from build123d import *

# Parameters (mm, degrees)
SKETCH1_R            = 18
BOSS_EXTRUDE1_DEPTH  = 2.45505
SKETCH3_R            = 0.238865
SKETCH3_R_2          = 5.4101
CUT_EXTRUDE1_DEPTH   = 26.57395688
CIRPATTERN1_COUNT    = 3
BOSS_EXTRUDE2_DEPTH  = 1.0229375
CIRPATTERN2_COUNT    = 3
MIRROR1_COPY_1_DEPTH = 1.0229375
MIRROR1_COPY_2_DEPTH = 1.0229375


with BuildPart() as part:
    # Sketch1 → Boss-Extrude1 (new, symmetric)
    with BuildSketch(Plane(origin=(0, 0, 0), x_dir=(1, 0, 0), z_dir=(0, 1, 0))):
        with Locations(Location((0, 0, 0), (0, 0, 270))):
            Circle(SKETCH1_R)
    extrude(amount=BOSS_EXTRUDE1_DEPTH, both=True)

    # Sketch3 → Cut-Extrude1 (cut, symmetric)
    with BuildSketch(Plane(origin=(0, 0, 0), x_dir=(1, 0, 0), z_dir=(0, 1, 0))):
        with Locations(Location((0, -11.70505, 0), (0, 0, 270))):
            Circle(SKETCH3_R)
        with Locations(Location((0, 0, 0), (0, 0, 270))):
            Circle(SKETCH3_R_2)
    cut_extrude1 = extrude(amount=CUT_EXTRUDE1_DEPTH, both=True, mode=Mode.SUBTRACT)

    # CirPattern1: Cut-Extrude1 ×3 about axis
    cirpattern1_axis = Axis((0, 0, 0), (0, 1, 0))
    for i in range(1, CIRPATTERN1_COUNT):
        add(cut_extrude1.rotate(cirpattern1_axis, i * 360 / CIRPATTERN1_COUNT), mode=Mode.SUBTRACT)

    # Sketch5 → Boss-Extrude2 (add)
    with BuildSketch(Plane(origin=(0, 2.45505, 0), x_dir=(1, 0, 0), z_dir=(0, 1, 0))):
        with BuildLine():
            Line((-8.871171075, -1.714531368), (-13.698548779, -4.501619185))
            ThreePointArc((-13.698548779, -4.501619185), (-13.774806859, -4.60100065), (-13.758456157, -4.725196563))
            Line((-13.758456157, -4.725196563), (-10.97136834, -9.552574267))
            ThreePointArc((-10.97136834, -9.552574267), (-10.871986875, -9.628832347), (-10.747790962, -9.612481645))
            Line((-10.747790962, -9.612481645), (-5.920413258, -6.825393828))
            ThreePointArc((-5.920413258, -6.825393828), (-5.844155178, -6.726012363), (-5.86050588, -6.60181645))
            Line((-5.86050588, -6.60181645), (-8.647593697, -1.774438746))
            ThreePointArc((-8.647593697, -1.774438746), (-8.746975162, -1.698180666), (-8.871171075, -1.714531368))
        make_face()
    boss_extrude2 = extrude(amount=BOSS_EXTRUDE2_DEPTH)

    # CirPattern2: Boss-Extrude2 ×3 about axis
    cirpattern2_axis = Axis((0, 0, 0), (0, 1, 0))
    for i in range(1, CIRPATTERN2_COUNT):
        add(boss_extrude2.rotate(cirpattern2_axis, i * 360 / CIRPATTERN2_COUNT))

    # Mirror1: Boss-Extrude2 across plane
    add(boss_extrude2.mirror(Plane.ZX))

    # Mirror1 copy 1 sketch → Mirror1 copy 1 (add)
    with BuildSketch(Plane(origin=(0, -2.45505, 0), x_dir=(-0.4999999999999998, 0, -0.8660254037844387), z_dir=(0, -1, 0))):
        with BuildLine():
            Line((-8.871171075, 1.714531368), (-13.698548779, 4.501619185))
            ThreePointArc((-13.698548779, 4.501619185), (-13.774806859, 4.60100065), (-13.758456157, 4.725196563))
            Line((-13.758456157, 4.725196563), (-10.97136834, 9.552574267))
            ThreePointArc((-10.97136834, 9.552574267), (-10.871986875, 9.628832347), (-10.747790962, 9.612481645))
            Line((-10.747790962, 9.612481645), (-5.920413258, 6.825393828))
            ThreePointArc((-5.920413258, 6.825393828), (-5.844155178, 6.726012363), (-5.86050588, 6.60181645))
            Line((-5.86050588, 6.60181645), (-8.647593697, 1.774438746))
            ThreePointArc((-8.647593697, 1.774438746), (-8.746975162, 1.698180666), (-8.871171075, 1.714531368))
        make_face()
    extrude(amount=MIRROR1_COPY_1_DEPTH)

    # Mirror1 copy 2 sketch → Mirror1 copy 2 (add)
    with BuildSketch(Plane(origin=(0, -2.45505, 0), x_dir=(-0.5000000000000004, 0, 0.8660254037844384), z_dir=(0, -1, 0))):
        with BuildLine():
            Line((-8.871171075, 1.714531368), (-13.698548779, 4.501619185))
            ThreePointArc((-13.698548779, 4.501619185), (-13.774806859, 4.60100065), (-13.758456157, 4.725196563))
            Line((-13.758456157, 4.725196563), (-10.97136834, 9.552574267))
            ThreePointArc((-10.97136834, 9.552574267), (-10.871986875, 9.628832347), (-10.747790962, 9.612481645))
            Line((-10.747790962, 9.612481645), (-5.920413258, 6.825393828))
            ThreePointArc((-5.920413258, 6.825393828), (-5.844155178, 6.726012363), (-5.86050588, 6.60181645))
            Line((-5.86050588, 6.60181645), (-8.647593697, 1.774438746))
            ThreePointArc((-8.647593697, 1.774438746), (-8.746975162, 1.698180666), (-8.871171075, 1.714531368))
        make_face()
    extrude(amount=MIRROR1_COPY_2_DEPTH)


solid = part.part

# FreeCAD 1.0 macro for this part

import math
import FreeCAD as App
import Part
import Sketcher
from FreeCAD import Vector
Q = App.Units.Quantity

doc = App.newDocument("Part")
params = doc.addObject("Spreadsheet::Sheet", "Params")
for row, (alias, value) in enumerate([
    ("sketch1_diameter", "36 mm"),
    ("pad1_length", "4.9101 mm"),
    ("pocket1_length", "53.147914 mm"),
    ("pad2_length", "1.022938 mm"),
    ("pad3_length", "1.022938 mm"),
    ("pad4_length", "1.022938 mm"),
], start=1):
    params.set(f"A{row}", alias)
    params.set(f"B{row}", "=" + value)
    params.setAlias(f"B{row}", alias)

body = doc.addObject("PartDesign::Body", "Body")

# Sketch on XZ plane
sketch1 = body.newObject("Sketcher::SketchObject", "Sketch")
sketch1.AttachmentSupport = (doc.getObject("XZ_Plane"), [""])
sketch1.MapMode = "FlatFace"
sketch1.addGeometry(Part.Circle(Vector(0, 0, 0), Vector(0, 0, 1), 18), False)
sketch1.addConstraint([
    Sketcher.Constraint("Coincident", 0, 3, -1, 1),
    Sketcher.Constraint("Diameter", 0, 36.0),
])
sketch1.setExpression("Constraints[1]", "Params.sketch1_diameter")
pad1 = body.newObject("PartDesign::Pad", "Pad")
pad1.Profile = sketch1
pad1.setExpression("Length", "Params.pad1_length")
pad1.Midplane = True

# Sketch on XZ plane
sketch2 = body.newObject("Sketcher::SketchObject", "Sketch001")
sketch2.AttachmentSupport = (doc.getObject("XZ_Plane"), [""])
sketch2.MapMode = "FlatFace"
sketch2.addGeometry([
    Part.Circle(Vector(0, 11.71, 0), Vector(0, 0, 1), 0.24),
    Part.Circle(Vector(0, 0, 0), Vector(0, 0, 1), 5.41),
], False)
sketch2.addConstraint([
    Sketcher.Constraint("Coincident", 1, 3, -1, 1),
    Sketcher.Constraint("PointOnObject", 0, 3, -2),
    Sketcher.Constraint("Diameter", 1, 10.8202),
    Sketcher.Constraint("Diameter", 0, 0.47773),
    Sketcher.Constraint("DistanceY", -1, 1, 0, 3, 11.70505),
])
pocket1 = body.newObject("PartDesign::Pocket", "Pocket")
pocket1.Profile = sketch2
pocket1.setExpression("Length", "Params.pocket1_length")
pocket1.Midplane = True
doc.recompute()

polarpattern = body.newObject("PartDesign::PolarPattern", "PolarPattern")
polarpattern.Originals = [pocket1]
polarpattern.Axis = (doc.getObject("Y_Axis"), [""])
polarpattern.Angle = 360
polarpattern.Occurrences = 3
body.Tip = polarpattern

# Sketch on XZ plane
sketch3 = body.newObject("Sketcher::SketchObject", "Sketch002")
sketch3.AttachmentSupport = (doc.getObject("XZ_Plane"), [""])
sketch3.MapMode = "FlatFace"
sketch3.AttachmentOffset = App.Placement(Vector(0, 0, -2.45505), App.Rotation())
sketch3.addGeometry([
    Part.LineSegment(Vector(-8.87, 1.71, 0), Vector(-13.7, 4.5, 0)),  # 0
    Part.ArcOfCircle(Part.Circle(Vector(-13.62, 4.64, 0), Vector(0, 0, 1), 0.16), math.radians(150), math.radians(240)),  # 1
    Part.LineSegment(Vector(-13.76, 4.73, 0), Vector(-10.97, 9.55, 0)),  # 2
    Part.ArcOfCircle(Part.Circle(Vector(-10.83, 9.47, 0), Vector(0, 0, 1), 0.16), math.radians(60), math.radians(150)),  # 3
    Part.LineSegment(Vector(-10.75, 9.61, 0), Vector(-5.92, 6.83, 0)),  # 4
    Part.ArcOfCircle(Part.Circle(Vector(-6, 6.68, 0), Vector(0, 0, 1), 0.16), math.radians(-30), math.radians(60)),  # 5
    Part.LineSegment(Vector(-5.86, 6.6, 0), Vector(-8.65, 1.77, 0)),  # 6
    Part.ArcOfCircle(Part.Circle(Vector(-8.79, 1.86, 0), Vector(0, 0, 1), 0.16), math.radians(-120), math.radians(-30)),  # 7
], False)
sketch3.addConstraint([
    Sketcher.Constraint("Tangent", 0, 2, 1, 2),
    Sketcher.Constraint("Tangent", 1, 1, 2, 1),
    Sketcher.Constraint("Tangent", 2, 2, 3, 2),
    Sketcher.Constraint("Tangent", 3, 1, 4, 1),
    Sketcher.Constraint("Tangent", 4, 2, 5, 2),
    Sketcher.Constraint("Tangent", 5, 1, 6, 1),
    Sketcher.Constraint("Tangent", 6, 2, 7, 2),
    Sketcher.Constraint("Tangent", 7, 1, 0, 1),
    Sketcher.Constraint("Equal", 1, 3),
    Sketcher.Constraint("Equal", 3, 5),
    Sketcher.Constraint("Equal", 5, 7),
    Sketcher.Constraint("Perpendicular", 0, 2),
    Sketcher.Constraint("Perpendicular", 2, 4),
    Sketcher.Constraint("Perpendicular", 4, 6),
    Sketcher.Constraint("Equal", 0, 2),
    Sketcher.Constraint("Angle", 0, Q("150 deg")),
    Sketcher.Constraint("Radius", 1, 0.16367),
    Sketcher.Constraint("DistanceX", 0, 2, 5, 3, 7.696301),
    Sketcher.Constraint("DistanceY", -1, 1, 1, 3, 4.643362),
    Sketcher.Constraint("DistanceX", 5, 3, -1, 1, 6.002248),
])
pad2 = body.newObject("PartDesign::Pad", "Pad001")
pad2.Profile = sketch3
pad2.setExpression("Length", "Params.pad2_length")
pad2.Reversed = True
doc.recompute()

polarpattern2 = body.newObject("PartDesign::PolarPattern", "PolarPattern001")
polarpattern2.Originals = [pad2]
polarpattern2.Axis = (doc.getObject("Y_Axis"), [""])
polarpattern2.Angle = 360
polarpattern2.Occurrences = 3
body.Tip = polarpattern2
doc.recompute()

mirrored = body.newObject("PartDesign::Mirrored", "Mirrored")
mirrored.Originals = [pad2]
mirrored.MirrorPlane = (doc.getObject("XZ_Plane"), [""])
body.Tip = mirrored

# Sketch on XZ plane
sketch4 = body.newObject("Sketcher::SketchObject", "Sketch003")
sketch4.AttachmentSupport = (doc.getObject("XZ_Plane"), [""])
sketch4.MapMode = "FlatFace"
sketch4.AttachmentOffset = App.Placement(Vector(0, 0, 2.45505), App.Rotation())
sketch4.addGeometry([
    Part.LineSegment(Vector(10.75, 9.61, 0), Vector(5.92, 6.83, 0)),  # 0
    Part.ArcOfCircle(Part.Circle(Vector(6, 6.68, 0), Vector(0, 0, 1), 0.16), math.radians(120), math.radians(210)),  # 1
    Part.LineSegment(Vector(5.86, 6.6, 0), Vector(8.65, 1.77, 0)),  # 2
    Part.ArcOfCircle(Part.Circle(Vector(8.79, 1.86, 0), Vector(0, 0, 1), 0.16), math.radians(-150), math.radians(-60)),  # 3
    Part.LineSegment(Vector(8.87, 1.71, 0), Vector(13.7, 4.5, 0)),  # 4
    Part.ArcOfCircle(Part.Circle(Vector(13.62, 4.64, 0), Vector(0, 0, 1), 0.16), math.radians(-60), math.radians(30)),  # 5
    Part.LineSegment(Vector(13.76, 4.73, 0), Vector(10.97, 9.55, 0)),  # 6
    Part.ArcOfCircle(Part.Circle(Vector(10.83, 9.47, 0), Vector(0, 0, 1), 0.16), math.radians(30), math.radians(120)),  # 7
], False)
sketch4.addConstraint([
    Sketcher.Constraint("Tangent", 0, 2, 1, 1),
    Sketcher.Constraint("Tangent", 1, 2, 2, 1),
    Sketcher.Constraint("Tangent", 2, 2, 3, 1),
    Sketcher.Constraint("Tangent", 3, 2, 4, 1),
    Sketcher.Constraint("Tangent", 4, 2, 5, 1),
    Sketcher.Constraint("Tangent", 5, 2, 6, 1),
    Sketcher.Constraint("Tangent", 6, 2, 7, 1),
    Sketcher.Constraint("Tangent", 7, 2, 0, 1),
    Sketcher.Constraint("Equal", 1, 3),
    Sketcher.Constraint("Equal", 3, 5),
    Sketcher.Constraint("Equal", 5, 7),
    Sketcher.Constraint("Perpendicular", 0, 2),
    Sketcher.Constraint("Perpendicular", 2, 4),
    Sketcher.Constraint("Perpendicular", 4, 6),
    Sketcher.Constraint("Equal", 0, 2),
    Sketcher.Constraint("Angle", 0, Q("-150 deg")),
    Sketcher.Constraint("Radius", 1, 0.16367),
    Sketcher.Constraint("DistanceX", 0, 2, 5, 3, 7.696301),
    Sketcher.Constraint("DistanceX", -1, 1, 1, 3, 6.002248),
    Sketcher.Constraint("DistanceY", -1, 1, 1, 3, 6.683651),
])
pad3 = body.newObject("PartDesign::Pad", "Pad002")
pad3.Profile = sketch4
pad3.setExpression("Length", "Params.pad3_length")

# Sketch on XZ plane
sketch5 = body.newObject("Sketcher::SketchObject", "Sketch004")
sketch5.AttachmentSupport = (doc.getObject("XZ_Plane"), [""])
sketch5.MapMode = "FlatFace"
sketch5.AttachmentOffset = App.Placement(Vector(0, 0, 2.45505), App.Rotation())
sketch5.addGeometry([
    Part.LineSegment(Vector(2.95, -14.11, 0), Vector(2.95, -8.54, 0)),  # 0
    Part.ArcOfCircle(Part.Circle(Vector(2.79, -8.54, 0), Vector(0, 0, 1), 0.16), math.radians(0), math.radians(90)),  # 1
    Part.LineSegment(Vector(2.79, -8.38, 0), Vector(-2.79, -8.38, 0)),  # 2
    Part.ArcOfCircle(Part.Circle(Vector(-2.79, -8.54, 0), Vector(0, 0, 1), 0.16), math.radians(90), math.radians(180)),  # 3
    Part.LineSegment(Vector(-2.95, -8.54, 0), Vector(-2.95, -14.11, 0)),  # 4
    Part.ArcOfCircle(Part.Circle(Vector(-2.79, -14.11, 0), Vector(0, 0, 1), 0.16), math.radians(180), math.radians(270)),  # 5
    Part.LineSegment(Vector(-2.79, -14.28, 0), Vector(2.79, -14.28, 0)),  # 6
    Part.ArcOfCircle(Part.Circle(Vector(2.79, -14.11, 0), Vector(0, 0, 1), 0.16), math.radians(-90), math.radians(0)),  # 7
], False)
sketch5.addConstraint([
    Sketcher.Constraint("Tangent", 0, 2, 1, 1),
    Sketcher.Constraint("Tangent", 1, 2, 2, 1),
    Sketcher.Constraint("Tangent", 2, 2, 3, 1),
    Sketcher.Constraint("Tangent", 3, 2, 4, 1),
    Sketcher.Constraint("Tangent", 4, 2, 5, 1),
    Sketcher.Constraint("Tangent", 5, 2, 6, 1),
    Sketcher.Constraint("Tangent", 6, 2, 7, 1),
    Sketcher.Constraint("Tangent", 7, 2, 0, 1),
    Sketcher.Constraint("Vertical", 0),
    Sketcher.Constraint("Horizontal", 2),
    Sketcher.Constraint("Vertical", 4),
    Sketcher.Constraint("Horizontal", 6),
    Sketcher.Constraint("Equal", 1, 3),
    Sketcher.Constraint("Equal", 3, 5),
    Sketcher.Constraint("Equal", 5, 7),
    Sketcher.Constraint("Equal", 6, 0),
    Sketcher.Constraint("Radius", 1, 0.16367),
    Sketcher.Constraint("DistanceY", 5, 3, -1, 1, 14.114101),
    Sketcher.Constraint("DistanceX", 2, 2, 2, 1, 5.574176),
    Sketcher.Constraint("DistanceX", -1, 1, 1, 3, 2.787088),
])
pad4 = body.newObject("PartDesign::Pad", "Pad003")
pad4.Profile = sketch5
pad4.setExpression("Length", "Params.pad4_length")

doc.recompute()
